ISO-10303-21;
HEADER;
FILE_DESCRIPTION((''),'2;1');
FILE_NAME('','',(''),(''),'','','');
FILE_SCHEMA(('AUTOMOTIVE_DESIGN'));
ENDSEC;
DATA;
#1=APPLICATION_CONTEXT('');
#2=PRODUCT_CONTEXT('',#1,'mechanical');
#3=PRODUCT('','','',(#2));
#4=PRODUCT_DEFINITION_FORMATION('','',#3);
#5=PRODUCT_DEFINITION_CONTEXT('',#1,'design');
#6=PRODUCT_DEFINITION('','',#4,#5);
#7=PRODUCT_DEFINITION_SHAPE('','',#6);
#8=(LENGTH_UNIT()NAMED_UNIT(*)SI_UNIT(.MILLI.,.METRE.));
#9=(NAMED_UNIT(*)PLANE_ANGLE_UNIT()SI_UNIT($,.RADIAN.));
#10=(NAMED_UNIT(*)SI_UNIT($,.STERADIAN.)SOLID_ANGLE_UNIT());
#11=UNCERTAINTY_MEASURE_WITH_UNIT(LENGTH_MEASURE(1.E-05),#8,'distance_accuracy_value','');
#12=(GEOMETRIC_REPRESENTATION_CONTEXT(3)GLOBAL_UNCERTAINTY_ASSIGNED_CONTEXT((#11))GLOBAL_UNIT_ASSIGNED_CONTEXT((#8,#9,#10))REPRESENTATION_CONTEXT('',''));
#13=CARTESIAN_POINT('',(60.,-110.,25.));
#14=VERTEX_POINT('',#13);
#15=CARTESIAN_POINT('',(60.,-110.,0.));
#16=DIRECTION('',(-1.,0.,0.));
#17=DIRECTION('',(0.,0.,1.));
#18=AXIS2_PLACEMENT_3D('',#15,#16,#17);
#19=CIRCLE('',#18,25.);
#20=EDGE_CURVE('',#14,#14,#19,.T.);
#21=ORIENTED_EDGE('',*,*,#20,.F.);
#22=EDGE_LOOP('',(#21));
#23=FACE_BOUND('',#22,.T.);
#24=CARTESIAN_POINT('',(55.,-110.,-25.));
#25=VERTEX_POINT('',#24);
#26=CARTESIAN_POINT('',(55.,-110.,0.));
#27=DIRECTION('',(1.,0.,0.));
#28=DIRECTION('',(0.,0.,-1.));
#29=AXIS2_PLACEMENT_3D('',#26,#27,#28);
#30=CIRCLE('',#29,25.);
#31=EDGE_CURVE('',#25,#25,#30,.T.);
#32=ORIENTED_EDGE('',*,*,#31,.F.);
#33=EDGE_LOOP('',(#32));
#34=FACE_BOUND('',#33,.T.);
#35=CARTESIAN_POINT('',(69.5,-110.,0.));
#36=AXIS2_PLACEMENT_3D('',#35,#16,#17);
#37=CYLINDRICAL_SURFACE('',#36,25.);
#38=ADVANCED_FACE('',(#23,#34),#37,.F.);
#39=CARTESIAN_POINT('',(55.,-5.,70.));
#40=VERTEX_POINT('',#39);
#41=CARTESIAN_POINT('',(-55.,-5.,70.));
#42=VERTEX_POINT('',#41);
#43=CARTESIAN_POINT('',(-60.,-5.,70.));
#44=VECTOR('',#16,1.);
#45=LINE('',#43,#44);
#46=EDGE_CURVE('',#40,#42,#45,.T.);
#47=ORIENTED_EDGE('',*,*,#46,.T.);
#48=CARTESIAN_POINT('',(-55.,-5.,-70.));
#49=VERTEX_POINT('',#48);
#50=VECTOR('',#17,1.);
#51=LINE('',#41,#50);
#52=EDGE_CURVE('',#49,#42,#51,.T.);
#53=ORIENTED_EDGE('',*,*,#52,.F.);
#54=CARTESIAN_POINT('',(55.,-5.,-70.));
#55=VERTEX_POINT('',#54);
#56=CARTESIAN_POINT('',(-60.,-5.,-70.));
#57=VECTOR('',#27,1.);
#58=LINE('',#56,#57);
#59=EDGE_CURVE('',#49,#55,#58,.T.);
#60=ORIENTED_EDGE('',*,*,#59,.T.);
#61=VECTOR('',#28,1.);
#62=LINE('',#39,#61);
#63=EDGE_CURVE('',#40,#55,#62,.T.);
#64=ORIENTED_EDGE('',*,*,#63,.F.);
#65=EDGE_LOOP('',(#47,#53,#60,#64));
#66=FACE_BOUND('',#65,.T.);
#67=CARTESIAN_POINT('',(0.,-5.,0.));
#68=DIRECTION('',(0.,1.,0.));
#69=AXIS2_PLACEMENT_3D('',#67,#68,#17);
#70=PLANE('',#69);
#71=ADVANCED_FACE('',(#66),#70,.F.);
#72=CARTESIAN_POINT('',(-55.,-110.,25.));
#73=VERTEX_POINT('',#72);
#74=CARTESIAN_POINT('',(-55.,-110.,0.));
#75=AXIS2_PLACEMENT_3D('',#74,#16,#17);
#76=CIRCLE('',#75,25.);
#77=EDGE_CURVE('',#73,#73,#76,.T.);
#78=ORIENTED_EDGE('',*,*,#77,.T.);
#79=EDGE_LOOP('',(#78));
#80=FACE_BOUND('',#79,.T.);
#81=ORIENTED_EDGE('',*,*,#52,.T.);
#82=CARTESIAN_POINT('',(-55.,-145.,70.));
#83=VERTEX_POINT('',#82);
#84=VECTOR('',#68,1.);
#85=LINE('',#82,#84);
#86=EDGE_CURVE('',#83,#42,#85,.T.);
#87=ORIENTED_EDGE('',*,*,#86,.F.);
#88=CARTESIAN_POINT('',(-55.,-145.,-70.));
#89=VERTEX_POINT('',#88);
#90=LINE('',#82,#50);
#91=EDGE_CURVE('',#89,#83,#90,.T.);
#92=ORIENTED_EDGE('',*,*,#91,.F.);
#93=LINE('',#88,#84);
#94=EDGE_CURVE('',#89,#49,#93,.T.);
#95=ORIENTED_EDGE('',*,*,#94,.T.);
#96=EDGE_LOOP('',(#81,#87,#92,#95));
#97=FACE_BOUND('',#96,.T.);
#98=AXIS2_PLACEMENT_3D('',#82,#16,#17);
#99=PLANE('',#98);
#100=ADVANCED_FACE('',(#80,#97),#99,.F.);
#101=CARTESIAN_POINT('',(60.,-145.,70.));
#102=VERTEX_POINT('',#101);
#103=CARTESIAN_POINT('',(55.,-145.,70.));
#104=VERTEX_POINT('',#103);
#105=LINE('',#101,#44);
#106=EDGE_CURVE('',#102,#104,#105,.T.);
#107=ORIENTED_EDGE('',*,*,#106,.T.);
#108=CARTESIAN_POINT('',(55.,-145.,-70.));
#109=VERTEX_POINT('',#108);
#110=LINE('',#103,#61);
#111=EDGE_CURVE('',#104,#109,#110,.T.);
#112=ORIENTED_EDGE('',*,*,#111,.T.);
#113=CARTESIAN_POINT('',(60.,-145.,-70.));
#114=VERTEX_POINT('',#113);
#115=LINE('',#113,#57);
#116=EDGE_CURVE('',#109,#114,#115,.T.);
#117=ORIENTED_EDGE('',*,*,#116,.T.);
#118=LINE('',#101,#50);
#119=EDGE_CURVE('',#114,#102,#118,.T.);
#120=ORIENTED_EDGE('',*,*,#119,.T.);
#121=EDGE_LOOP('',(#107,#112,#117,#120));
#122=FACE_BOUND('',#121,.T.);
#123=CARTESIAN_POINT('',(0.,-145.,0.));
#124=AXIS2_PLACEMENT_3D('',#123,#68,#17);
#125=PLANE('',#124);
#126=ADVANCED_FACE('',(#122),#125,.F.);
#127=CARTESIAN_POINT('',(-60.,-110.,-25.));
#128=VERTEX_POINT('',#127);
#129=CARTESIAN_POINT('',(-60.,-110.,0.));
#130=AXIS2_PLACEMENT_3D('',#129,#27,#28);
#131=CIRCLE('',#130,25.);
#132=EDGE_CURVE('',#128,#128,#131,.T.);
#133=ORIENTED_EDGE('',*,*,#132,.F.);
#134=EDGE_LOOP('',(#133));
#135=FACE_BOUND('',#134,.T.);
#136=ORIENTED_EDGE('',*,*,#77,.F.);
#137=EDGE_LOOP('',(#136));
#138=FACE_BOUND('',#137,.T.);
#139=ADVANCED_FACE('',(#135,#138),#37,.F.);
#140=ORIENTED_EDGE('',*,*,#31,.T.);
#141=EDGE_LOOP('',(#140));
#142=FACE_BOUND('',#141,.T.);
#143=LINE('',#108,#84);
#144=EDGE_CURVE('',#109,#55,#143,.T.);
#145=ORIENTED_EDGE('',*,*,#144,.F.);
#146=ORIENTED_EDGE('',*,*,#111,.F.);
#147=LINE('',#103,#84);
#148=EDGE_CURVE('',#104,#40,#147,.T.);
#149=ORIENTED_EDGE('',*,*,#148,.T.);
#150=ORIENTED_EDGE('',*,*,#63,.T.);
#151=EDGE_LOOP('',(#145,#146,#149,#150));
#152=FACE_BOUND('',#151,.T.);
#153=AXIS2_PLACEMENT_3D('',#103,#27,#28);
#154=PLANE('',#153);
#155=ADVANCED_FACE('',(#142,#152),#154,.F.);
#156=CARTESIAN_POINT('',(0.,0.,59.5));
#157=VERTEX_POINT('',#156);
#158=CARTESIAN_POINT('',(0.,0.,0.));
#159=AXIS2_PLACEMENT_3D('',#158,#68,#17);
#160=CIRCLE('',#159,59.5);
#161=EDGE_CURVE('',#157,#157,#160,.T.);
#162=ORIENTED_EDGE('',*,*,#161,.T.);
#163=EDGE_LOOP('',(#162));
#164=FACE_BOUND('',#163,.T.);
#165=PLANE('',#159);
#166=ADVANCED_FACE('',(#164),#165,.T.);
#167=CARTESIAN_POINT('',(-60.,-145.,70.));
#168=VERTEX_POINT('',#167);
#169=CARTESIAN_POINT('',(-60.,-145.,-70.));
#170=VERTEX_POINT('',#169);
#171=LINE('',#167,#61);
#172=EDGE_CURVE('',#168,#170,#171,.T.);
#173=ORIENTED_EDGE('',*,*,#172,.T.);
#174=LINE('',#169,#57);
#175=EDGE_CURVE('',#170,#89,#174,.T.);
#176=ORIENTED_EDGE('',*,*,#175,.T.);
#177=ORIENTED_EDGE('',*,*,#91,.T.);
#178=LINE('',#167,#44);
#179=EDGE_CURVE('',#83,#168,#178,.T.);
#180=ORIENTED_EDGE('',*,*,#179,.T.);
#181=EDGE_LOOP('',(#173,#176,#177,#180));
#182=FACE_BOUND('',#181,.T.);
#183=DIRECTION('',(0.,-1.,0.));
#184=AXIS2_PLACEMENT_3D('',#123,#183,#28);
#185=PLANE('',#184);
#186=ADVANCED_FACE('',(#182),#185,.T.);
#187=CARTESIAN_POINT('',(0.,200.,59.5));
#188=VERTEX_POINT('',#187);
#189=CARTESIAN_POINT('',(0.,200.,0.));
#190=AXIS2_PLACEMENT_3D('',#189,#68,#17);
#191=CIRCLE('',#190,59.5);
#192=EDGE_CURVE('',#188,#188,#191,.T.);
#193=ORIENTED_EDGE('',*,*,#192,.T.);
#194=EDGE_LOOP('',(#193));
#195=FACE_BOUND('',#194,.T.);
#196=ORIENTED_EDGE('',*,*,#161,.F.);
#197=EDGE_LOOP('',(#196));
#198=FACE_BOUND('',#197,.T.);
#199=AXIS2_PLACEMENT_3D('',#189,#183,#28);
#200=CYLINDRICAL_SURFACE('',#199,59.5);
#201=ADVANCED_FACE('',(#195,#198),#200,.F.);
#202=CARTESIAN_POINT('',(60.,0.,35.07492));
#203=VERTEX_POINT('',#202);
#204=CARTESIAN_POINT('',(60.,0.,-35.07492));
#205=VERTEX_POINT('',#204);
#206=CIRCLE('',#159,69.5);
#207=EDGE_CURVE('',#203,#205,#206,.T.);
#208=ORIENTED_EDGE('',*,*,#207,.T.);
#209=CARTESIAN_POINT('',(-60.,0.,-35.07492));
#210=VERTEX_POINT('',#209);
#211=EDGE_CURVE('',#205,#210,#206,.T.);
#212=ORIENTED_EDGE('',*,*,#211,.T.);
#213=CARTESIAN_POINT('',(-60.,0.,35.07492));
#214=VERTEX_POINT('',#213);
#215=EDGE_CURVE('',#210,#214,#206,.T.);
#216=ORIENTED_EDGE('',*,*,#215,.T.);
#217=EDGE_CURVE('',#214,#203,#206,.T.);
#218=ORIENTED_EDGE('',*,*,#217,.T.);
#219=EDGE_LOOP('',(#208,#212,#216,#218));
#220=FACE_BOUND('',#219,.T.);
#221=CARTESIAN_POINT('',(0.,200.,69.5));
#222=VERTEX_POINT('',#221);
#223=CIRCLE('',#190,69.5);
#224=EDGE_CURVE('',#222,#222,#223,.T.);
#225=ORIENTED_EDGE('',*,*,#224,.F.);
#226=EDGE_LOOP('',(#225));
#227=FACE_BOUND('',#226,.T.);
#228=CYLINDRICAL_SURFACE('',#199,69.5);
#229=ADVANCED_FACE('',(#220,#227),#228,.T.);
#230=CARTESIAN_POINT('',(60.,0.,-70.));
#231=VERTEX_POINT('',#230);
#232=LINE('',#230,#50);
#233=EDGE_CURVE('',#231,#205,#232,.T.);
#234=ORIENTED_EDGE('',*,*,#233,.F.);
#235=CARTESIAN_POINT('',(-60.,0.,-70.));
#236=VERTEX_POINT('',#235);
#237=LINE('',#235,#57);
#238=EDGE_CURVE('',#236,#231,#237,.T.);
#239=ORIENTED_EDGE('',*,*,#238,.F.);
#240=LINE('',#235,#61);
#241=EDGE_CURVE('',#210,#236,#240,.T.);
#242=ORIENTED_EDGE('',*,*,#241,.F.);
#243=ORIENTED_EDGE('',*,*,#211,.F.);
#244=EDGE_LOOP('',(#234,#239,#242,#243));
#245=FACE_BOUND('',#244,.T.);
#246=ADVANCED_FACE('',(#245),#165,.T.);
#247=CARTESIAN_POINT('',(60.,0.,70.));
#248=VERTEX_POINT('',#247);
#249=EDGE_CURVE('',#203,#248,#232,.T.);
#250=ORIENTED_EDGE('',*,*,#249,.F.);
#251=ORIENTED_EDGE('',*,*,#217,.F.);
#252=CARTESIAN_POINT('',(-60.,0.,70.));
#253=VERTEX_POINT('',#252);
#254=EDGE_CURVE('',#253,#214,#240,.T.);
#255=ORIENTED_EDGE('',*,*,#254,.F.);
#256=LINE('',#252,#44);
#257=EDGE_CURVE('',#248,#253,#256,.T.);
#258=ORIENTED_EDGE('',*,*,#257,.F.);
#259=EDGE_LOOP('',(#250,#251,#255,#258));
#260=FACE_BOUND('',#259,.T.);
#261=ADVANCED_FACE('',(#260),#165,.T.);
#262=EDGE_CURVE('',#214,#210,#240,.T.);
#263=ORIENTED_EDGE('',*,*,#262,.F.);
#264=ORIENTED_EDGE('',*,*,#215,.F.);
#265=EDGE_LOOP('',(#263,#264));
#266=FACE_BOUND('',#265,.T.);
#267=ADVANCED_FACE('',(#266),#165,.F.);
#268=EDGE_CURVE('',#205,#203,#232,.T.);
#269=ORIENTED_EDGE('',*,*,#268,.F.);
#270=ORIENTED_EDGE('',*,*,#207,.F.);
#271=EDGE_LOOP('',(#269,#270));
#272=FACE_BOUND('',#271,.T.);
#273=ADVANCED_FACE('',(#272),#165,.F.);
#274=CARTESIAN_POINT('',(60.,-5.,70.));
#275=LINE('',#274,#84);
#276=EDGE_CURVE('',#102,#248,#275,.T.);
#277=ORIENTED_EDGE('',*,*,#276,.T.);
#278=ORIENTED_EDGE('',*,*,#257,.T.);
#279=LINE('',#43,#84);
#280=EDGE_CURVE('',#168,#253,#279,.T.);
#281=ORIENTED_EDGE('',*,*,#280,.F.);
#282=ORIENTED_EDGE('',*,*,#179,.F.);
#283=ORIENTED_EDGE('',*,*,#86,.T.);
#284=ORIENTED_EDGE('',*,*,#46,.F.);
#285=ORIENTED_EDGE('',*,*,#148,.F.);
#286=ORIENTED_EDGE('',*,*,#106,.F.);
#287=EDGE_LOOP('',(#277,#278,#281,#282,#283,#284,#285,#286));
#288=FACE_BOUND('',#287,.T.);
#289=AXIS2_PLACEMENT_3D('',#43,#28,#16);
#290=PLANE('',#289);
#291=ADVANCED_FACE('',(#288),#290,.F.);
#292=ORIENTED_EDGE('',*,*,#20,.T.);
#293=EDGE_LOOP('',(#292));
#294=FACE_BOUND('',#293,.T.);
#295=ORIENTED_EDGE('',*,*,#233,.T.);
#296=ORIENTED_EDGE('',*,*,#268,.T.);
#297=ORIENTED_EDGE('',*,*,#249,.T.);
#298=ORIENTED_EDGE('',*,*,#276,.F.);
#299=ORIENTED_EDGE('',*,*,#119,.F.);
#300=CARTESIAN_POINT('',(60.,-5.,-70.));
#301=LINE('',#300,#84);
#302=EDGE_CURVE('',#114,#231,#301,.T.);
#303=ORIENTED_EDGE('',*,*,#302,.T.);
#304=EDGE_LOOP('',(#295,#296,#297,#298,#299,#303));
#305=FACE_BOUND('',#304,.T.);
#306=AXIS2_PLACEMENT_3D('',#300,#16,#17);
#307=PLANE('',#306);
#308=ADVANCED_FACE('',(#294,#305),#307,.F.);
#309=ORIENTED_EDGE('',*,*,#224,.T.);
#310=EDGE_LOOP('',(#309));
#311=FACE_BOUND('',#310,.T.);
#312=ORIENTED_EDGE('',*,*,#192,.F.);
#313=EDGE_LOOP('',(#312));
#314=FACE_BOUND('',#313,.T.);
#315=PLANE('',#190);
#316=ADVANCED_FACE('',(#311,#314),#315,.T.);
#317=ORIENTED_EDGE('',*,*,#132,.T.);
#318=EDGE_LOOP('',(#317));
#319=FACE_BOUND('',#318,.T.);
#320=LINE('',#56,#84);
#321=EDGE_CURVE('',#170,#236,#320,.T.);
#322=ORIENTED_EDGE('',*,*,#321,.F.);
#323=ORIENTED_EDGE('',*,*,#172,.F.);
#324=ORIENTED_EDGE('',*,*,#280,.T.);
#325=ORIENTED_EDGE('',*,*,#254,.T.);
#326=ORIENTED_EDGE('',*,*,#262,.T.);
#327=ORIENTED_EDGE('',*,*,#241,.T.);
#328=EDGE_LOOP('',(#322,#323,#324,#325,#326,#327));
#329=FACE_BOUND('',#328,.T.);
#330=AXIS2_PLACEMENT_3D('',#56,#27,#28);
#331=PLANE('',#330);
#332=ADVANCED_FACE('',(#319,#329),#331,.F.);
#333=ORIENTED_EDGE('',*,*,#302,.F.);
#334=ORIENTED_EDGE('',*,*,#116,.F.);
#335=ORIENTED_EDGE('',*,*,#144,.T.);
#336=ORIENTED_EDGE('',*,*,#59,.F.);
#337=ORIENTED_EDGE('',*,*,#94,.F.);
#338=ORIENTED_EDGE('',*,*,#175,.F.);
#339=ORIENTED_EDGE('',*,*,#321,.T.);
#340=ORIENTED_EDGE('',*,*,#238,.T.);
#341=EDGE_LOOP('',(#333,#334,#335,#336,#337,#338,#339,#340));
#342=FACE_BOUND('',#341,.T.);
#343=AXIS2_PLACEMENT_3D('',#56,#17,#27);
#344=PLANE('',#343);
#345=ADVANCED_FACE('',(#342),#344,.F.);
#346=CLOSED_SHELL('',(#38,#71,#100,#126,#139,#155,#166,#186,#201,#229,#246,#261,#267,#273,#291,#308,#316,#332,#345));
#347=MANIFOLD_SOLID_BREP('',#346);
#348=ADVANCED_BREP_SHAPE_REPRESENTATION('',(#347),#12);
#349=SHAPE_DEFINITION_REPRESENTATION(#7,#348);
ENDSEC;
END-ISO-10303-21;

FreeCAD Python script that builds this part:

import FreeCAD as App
import Part
import Sketcher
Q = App.Units.Quantity

doc = App.newDocument("Part")
body = doc.addObject("PartDesign::Body", "Body")

# Sketch on XZ plane
sketch1 = doc.addObject("Sketcher::SketchObject", "Sketch")
body.addObject(sketch1)
sketch1.AttachmentSupport = (doc.XZ_Plane, [""])
sketch1.MapMode = "FlatFace"
sketch1.addGeometry([
    Part.Circle(App.Vector(0, 0, 0), App.Vector(0, 0, 1), 70),
    Part.Circle(App.Vector(0, 0, 0), App.Vector(0, 0, 1), 60),
], False)
sketch1.addConstraint([
    Sketcher.Constraint("Coincident", 0, 3, -1, 1),
    Sketcher.Constraint("Coincident", 1, 3, -1, 1),
    Sketcher.Constraint("Diameter", 0, Q("139 mm")),
    Sketcher.Constraint("Diameter", 1, Q("119 mm")),
])
pad1 = doc.addObject("PartDesign::Pad", "Pad")
body.addObject(pad1)
pad1.Profile = sketch1
pad1.Length = 200
pad1.Reversed = True

# Sketch on XZ plane
sketch2 = doc.addObject("Sketcher::SketchObject", "Sketch001")
body.addObject(sketch2)
sketch2.AttachmentSupport = (doc.XZ_Plane, [""])
sketch2.MapMode = "FlatFace"
sketch2.addGeometry([
    Part.LineSegment(App.Vector(-60, 70, 0), App.Vector(-60, -70, 0)),
    Part.LineSegment(App.Vector(-60, -70, 0), App.Vector(60, -70, 0)),
    Part.LineSegment(App.Vector(60, -70, 0), App.Vector(60, 70, 0)),
    Part.LineSegment(App.Vector(60, 70, 0), App.Vector(-60, 70, 0)),
], False)
sketch2.addConstraint([
    Sketcher.Constraint("Coincident", 0, 2, 1, 1),
    Sketcher.Constraint("Coincident", 1, 2, 2, 1),
    Sketcher.Constraint("Coincident", 2, 2, 3, 1),
    Sketcher.Constraint("Coincident", 3, 2, 0, 1),
    Sketcher.Constraint("Vertical", 0),
    Sketcher.Constraint("Horizontal", 1),
    Sketcher.Constraint("Vertical", 2),
    Sketcher.Constraint("Horizontal", 3),
    Sketcher.Constraint("Symmetric", 0, 2, 2, 2, -1, 1),
    Sketcher.Constraint("DistanceX", 1, 1, 1, 2, Q("120 mm")),
    Sketcher.Constraint("DistanceY", 0, 2, 0, 1, Q("140 mm")),
])
pad2 = doc.addObject("PartDesign::Pad", "Pad001")
body.addObject(pad2)
pad2.Profile = sketch2
pad2.Length = 5

# Sketch on XZ plane
sketch3 = doc.addObject("Sketcher::SketchObject", "Sketch002")
body.addObject(sketch3)
sketch3.AttachmentSupport = (doc.XZ_Plane, [""])
sketch3.MapMode = "FlatFace"
sketch3.AttachmentOffset = App.Placement(App.Vector(0, 0, 5), App.Rotation())
sketch3.addGeometry([
    Part.LineSegment(App.Vector(-60, 70, 0), App.Vector(-60, -70, 0)),  # 0
    Part.LineSegment(App.Vector(-60, -70, 0), App.Vector(-55, -70, 0)),  # 1
    Part.LineSegment(App.Vector(-55, -70, 0), App.Vector(-55, 70, 0)),  # 2
    Part.LineSegment(App.Vector(-55, 70, 0), App.Vector(-60, 70, 0)),  # 3
    Part.LineSegment(App.Vector(55, 70, 0), App.Vector(55, -70, 0)),  # 4
    Part.LineSegment(App.Vector(55, -70, 0), App.Vector(60, -70, 0)),  # 5
    Part.LineSegment(App.Vector(60, -70, 0), App.Vector(60, 70, 0)),  # 6
    Part.LineSegment(App.Vector(60, 70, 0), App.Vector(55, 70, 0)),  # 7
], False)
sketch3.addConstraint([
    Sketcher.Constraint("Coincident", 0, 2, 1, 1),
    Sketcher.Constraint("Coincident", 1, 2, 2, 1),
    Sketcher.Constraint("Coincident", 2, 2, 3, 1),
    Sketcher.Constraint("Coincident", 3, 2, 0, 1),
    Sketcher.Constraint("Coincident", 4, 2, 5, 1),
    Sketcher.Constraint("Coincident", 5, 2, 6, 1),
    Sketcher.Constraint("Coincident", 6, 2, 7, 1),
    Sketcher.Constraint("Coincident", 7, 2, 4, 1),
    Sketcher.Constraint("Vertical", 0),
    Sketcher.Constraint("Horizontal", 1),
    Sketcher.Constraint("Vertical", 2),
    Sketcher.Constraint("Horizontal", 3),
    Sketcher.Constraint("Vertical", 4),
    Sketcher.Constraint("Horizontal", 5),
    Sketcher.Constraint("Vertical", 6),
    Sketcher.Constraint("Horizontal", 7),
    Sketcher.Constraint("Symmetric", 2, 2, 4, 2, -1, 1),
    Sketcher.Constraint("Symmetric", 0, 2, 6, 2, -1, 1),
    Sketcher.Constraint("Horizontal", 1, 2, 4, 2),
    Sketcher.Constraint("DistanceX", 1, 1, 1, 2, Q("5 mm")),
    Sketcher.Constraint("DistanceY", 0, 2, 0, 1, Q("140 mm")),
    Sketcher.Constraint("DistanceX", 0, 2, -1, 1, Q("60 mm")),
])
pad3 = doc.addObject("PartDesign::Pad", "Pad002")
body.addObject(pad3)
pad3.Profile = sketch3
pad3.Length = 140

# Sketch on YZ plane
sketch4 = doc.addObject("Sketcher::SketchObject", "Sketch003")
body.addObject(sketch4)
sketch4.AttachmentSupport = (doc.YZ_Plane, [""])
sketch4.MapMode = "FlatFace"
sketch4.AttachmentOffset = App.Placement(App.Vector(0, 0, -60), App.Rotation())
sketch4.addGeometry(Part.Circle(App.Vector(-110, 0, 0), App.Vector(0, 0, 1), 25), False)
sketch4.addConstraint([
    Sketcher.Constraint("PointOnObject", 0, 3, -1),
    Sketcher.Constraint("Diameter", 0, Q("50 mm")),
    Sketcher.Constraint("DistanceX", 0, 3, -1, 1, Q("110 mm")),
])
pocket1 = doc.addObject("PartDesign::Pocket", "Pocket")
body.addObject(pocket1)
pocket1.Profile = sketch4
pocket1.Type = "ThroughAll"
pocket1.Midplane = True

doc.recompute()
